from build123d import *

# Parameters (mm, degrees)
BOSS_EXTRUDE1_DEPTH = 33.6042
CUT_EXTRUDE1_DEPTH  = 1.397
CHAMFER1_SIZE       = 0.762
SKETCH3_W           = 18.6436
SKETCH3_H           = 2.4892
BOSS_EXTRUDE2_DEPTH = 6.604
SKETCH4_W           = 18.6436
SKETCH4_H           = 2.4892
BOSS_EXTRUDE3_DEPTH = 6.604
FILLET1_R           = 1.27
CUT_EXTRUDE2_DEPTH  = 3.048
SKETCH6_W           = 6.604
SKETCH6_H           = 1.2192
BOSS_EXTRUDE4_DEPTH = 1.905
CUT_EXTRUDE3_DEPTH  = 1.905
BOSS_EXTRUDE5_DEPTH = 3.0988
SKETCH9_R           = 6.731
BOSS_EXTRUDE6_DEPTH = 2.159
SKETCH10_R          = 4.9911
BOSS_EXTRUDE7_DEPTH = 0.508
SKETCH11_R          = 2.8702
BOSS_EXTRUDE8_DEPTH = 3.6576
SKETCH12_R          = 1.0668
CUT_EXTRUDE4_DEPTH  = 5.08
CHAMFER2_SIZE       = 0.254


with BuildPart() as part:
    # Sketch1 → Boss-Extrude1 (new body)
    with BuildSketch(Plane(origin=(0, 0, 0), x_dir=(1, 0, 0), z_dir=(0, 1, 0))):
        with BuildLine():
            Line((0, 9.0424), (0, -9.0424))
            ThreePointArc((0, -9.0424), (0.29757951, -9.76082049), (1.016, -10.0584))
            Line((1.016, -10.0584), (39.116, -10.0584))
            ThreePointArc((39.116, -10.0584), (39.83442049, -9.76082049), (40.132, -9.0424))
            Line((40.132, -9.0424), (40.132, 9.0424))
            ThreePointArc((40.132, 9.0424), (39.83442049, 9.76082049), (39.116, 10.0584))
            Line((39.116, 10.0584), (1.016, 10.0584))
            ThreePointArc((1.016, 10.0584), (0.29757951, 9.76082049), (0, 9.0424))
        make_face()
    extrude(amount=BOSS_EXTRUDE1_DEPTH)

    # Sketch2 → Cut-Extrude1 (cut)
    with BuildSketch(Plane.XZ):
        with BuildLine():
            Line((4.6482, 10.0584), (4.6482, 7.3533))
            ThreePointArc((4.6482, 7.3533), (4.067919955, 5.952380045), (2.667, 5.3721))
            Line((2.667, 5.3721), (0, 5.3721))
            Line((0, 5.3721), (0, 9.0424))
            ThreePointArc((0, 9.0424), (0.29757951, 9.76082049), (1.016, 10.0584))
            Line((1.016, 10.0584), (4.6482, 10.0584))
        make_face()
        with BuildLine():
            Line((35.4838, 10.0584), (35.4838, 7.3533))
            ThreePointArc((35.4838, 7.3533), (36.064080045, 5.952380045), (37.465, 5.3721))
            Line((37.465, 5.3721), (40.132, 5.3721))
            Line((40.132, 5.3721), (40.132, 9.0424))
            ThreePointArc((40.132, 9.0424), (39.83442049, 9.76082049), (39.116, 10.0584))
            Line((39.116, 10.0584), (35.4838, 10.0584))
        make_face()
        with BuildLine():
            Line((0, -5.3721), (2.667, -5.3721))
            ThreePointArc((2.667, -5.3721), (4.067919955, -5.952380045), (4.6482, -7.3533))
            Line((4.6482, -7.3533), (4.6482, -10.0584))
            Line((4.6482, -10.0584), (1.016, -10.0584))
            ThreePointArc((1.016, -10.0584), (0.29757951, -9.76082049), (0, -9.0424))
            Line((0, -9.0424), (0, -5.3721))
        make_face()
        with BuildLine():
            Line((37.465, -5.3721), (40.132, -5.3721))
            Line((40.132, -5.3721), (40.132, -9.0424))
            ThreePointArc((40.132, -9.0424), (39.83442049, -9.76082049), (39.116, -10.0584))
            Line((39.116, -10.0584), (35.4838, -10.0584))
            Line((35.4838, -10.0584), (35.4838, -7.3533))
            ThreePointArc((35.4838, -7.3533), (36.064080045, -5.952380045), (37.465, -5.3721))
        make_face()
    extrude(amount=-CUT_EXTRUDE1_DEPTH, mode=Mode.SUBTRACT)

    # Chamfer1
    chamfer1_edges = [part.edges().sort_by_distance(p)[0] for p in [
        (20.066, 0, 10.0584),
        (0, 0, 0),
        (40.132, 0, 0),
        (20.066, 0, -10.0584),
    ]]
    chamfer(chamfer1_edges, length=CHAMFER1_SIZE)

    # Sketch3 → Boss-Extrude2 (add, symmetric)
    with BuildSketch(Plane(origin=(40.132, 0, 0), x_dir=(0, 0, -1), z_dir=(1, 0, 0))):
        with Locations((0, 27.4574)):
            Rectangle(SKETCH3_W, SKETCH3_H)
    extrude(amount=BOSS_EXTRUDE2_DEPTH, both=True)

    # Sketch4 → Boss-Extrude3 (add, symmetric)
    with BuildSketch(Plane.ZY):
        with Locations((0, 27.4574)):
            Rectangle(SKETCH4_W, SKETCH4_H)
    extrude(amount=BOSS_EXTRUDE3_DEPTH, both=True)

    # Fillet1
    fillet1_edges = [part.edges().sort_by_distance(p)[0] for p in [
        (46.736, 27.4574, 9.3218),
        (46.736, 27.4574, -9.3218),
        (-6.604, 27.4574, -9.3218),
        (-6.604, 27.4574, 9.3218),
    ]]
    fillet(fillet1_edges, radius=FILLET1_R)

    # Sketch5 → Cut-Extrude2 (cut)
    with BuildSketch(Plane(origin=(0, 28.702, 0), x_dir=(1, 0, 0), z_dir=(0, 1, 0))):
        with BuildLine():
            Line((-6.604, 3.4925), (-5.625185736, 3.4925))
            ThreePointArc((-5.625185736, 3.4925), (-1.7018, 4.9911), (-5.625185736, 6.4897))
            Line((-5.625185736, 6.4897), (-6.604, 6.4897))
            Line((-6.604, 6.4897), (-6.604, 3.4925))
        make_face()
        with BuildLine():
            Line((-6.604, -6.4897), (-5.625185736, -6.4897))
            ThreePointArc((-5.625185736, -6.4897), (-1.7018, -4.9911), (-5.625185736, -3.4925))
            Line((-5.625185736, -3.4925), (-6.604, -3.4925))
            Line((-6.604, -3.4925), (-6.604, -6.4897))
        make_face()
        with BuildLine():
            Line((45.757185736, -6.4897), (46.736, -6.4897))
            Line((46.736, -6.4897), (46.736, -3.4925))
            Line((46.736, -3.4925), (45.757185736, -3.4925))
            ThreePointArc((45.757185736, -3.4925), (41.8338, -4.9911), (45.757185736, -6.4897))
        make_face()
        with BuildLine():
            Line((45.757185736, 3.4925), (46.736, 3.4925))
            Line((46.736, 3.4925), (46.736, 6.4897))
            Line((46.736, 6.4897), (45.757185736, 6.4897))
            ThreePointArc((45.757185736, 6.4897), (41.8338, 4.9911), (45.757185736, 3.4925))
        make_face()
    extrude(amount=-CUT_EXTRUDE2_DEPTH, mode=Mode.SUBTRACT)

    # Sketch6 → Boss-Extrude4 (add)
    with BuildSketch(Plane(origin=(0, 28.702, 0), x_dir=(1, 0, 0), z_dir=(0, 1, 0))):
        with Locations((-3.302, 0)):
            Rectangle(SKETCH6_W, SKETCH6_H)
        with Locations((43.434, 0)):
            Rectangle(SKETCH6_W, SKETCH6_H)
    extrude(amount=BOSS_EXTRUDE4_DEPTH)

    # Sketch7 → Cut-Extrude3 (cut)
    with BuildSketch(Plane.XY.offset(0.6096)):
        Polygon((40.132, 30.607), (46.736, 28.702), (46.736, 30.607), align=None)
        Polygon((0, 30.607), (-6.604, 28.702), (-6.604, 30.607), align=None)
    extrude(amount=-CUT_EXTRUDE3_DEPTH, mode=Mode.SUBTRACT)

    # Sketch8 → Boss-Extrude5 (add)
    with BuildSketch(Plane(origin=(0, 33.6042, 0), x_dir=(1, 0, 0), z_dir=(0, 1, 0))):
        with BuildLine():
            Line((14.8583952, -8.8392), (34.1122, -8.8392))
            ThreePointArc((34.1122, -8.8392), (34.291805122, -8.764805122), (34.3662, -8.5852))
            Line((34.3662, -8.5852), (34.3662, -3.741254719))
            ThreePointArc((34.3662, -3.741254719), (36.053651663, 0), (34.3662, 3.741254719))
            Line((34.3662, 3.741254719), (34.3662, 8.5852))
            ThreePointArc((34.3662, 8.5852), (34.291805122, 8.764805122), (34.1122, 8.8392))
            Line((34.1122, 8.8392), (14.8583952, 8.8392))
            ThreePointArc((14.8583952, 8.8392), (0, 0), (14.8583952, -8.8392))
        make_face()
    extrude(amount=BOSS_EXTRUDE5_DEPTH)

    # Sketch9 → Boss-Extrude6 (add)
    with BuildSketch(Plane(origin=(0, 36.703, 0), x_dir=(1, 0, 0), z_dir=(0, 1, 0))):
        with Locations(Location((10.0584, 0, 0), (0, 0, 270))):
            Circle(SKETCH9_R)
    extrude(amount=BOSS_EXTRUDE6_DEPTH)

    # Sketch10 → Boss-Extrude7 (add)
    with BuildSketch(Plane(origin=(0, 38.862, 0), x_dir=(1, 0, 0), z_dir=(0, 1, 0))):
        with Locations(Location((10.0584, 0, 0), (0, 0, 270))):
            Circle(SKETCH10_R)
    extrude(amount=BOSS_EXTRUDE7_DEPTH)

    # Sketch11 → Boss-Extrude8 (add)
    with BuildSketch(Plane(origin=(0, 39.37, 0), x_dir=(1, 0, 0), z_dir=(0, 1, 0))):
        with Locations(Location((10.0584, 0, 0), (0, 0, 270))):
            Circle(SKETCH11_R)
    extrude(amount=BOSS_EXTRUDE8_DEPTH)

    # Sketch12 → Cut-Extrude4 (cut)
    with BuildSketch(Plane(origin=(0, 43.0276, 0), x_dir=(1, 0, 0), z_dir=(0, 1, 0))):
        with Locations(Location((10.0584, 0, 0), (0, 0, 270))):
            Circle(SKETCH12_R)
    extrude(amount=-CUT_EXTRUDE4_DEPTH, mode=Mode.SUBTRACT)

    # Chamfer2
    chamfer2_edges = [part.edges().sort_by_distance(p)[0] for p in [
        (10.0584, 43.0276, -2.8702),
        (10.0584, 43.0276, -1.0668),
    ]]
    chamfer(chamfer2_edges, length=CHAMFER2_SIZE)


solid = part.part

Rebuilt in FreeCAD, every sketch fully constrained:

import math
import FreeCAD as App
import Part
import Sketcher
from FreeCAD import Vector
Q = App.Units.Quantity


def edges_at(feature, points):
    """Names of the edges that pass closest to the given points."""
    edges = feature.Shape.Edges
    near = lambda p: min(range(len(edges)), key=lambda i: edges[i].distToShape(Part.Vertex(*p))[0])
    return sorted({f"Edge{near(p) + 1}" for p in points})


def add_polygon(sketch, points):
    """Adds a closed chain of lines whose ends are joined by coincident constraints."""
    first, n = sketch.GeometryCount, len(points)
    for a, b in zip(points, points[1:] + points[:1]):
        sketch.addGeometry(Part.LineSegment(App.Vector(*a, 0), App.Vector(*b, 0)), False)
    for i in range(n):
        sketch.addConstraint(Sketcher.Constraint("Coincident", first + i, 2, first + (i + 1) % n, 1))

doc = App.newDocument("Part")
body = doc.addObject("PartDesign::Body", "Body")

sketch1 = doc.addObject("Sketcher::SketchObject", "Sketch")
body.addObject(sketch1)
sketch1.AttachmentSupport = (doc.XZ_Plane, [""])
sketch1.MapMode = "FlatFace"
sketch1.addGeometry([
    Part.LineSegment(Vector(0, -9.0424, 0), Vector(0, 9.0424, 0)),
    Part.ArcOfCircle(Part.Circle(Vector(1.016, 9.0424, 0), Vector(0, 0, 1), 1.016), math.radians(90), math.radians(180)),
    Part.LineSegment(Vector(1.016, 10.0584, 0), Vector(39.116, 10.0584, 0)),
    Part.ArcOfCircle(Part.Circle(Vector(39.116, 9.0424, 0), Vector(0, 0, 1), 1.016), math.radians(0), math.radians(90)),
    Part.LineSegment(Vector(40.132, 9.0424, 0), Vector(40.132, -9.0424, 0)),
    Part.ArcOfCircle(Part.Circle(Vector(39.116, -9.0424, 0), Vector(0, 0, 1), 1.016), math.radians(-90), math.radians(0)),
    Part.LineSegment(Vector(39.116, -10.0584, 0), Vector(1.016, -10.0584, 0)),
    Part.ArcOfCircle(Part.Circle(Vector(1.016, -9.0424, 0), Vector(0, 0, 1), 1.016), math.radians(180), math.radians(270)),
], False)
sketch1.addConstraint([
    Sketcher.Constraint("Tangent", 0, 2, 1, 2),
    Sketcher.Constraint("Tangent", 1, 1, 2, 1),
    Sketcher.Constraint("Tangent", 2, 2, 3, 2),
    Sketcher.Constraint("Tangent", 3, 1, 4, 1),
    Sketcher.Constraint("Tangent", 4, 2, 5, 2),
    Sketcher.Constraint("Tangent", 5, 1, 6, 1),
    Sketcher.Constraint("Tangent", 6, 2, 7, 2),
    Sketcher.Constraint("Tangent", 7, 1, 0, 1),
    Sketcher.Constraint("Vertical", 0),
    Sketcher.Constraint("Horizontal", 2),
    Sketcher.Constraint("Vertical", 4),
    Sketcher.Constraint("Horizontal", 6),
    Sketcher.Constraint("Equal", 1, 3),
    Sketcher.Constraint("Equal", 3, 5),
    Sketcher.Constraint("Equal", 5, 7),
    Sketcher.Constraint("Symmetric", 0, 2, 7, 1, -1, 1),
    Sketcher.Constraint("Radius", 1, Q("0.04 in")),
    Sketcher.Constraint("DistanceX", 2, 1, 2, 2, Q("1.5 in")),
    Sketcher.Constraint("DistanceY", 0, 1, 0, 2, Q("0.712 in")),
])
pad1 = doc.addObject("PartDesign::Pad", "Pad")
body.addObject(pad1)
pad1.Profile = sketch1
pad1.Length = Q("1.323 in")
pad1.Reversed = True

sketch2 = doc.addObject("Sketcher::SketchObject", "Sketch001")
body.addObject(sketch2)
sketch2.AttachmentSupport = (doc.XZ_Plane, [""])
sketch2.MapMode = "FlatFace"
sketch2.addGeometry([
    Part.LineSegment(Vector(4.6482, 7.3533, 0), Vector(4.6482, 10.0584, 0)),
    Part.LineSegment(Vector(4.6482, 10.0584, 0), Vector(1.016, 10.0584, 0)),
    Part.ArcOfCircle(Part.Circle(Vector(1.016, 9.0424, 0), Vector(0, 0, 1), 1.016), math.radians(90), math.radians(180)),
    Part.LineSegment(Vector(0, 9.0424, 0), Vector(0, 5.3721, 0)),
    Part.LineSegment(Vector(0, 5.3721, 0), Vector(2.667, 5.3721, 0)),
    Part.ArcOfCircle(Part.Circle(Vector(2.667, 7.3533, 0), Vector(0, 0, 1), 1.9812), math.radians(-90), math.radians(0)),
    Part.LineSegment(Vector(35.4838, 10.0584, 0), Vector(35.4838, 7.3533, 0)),
    Part.ArcOfCircle(Part.Circle(Vector(37.465, 7.3533, 0), Vector(0, 0, 1), 1.9812), math.radians(180), math.radians(270)),
    Part.LineSegment(Vector(37.465, 5.3721, 0), Vector(40.132, 5.3721, 0)),
    Part.LineSegment(Vector(40.132, 5.3721, 0), Vector(40.132, 9.0424, 0)),
    Part.ArcOfCircle(Part.Circle(Vector(39.116, 9.0424, 0), Vector(0, 0, 1), 1.016), math.radians(0), math.radians(90)),
    Part.LineSegment(Vector(39.116, 10.0584, 0), Vector(35.4838, 10.0584, 0)),
    Part.LineSegment(Vector(2.667, -5.3721, 0), Vector(0, -5.3721, 0)),
    Part.LineSegment(Vector(0, -5.3721, 0), Vector(0, -9.0424, 0)),
    Part.ArcOfCircle(Part.Circle(Vector(1.016, -9.0424, 0), Vector(0, 0, 1), 1.016), math.radians(180), math.radians(270)),
    Part.LineSegment(Vector(1.016, -10.0584, 0), Vector(4.6482, -10.0584, 0)),
    Part.LineSegment(Vector(4.6482, -10.0584, 0), Vector(4.6482, -7.3533, 0)),
    Part.ArcOfCircle(Part.Circle(Vector(2.667, -7.3533, 0), Vector(0, 0, 1), 1.9812), math.radians(0), math.radians(90)),
    Part.LineSegment(Vector(40.132, -5.3721, 0), Vector(37.465, -5.3721, 0)),
    Part.ArcOfCircle(Part.Circle(Vector(37.465, -7.3533, 0), Vector(0, 0, 1), 1.9812), math.radians(90), math.radians(180)),
    Part.LineSegment(Vector(35.4838, -7.3533, 0), Vector(35.4838, -10.0584, 0)),
    Part.LineSegment(Vector(35.4838, -10.0584, 0), Vector(39.116, -10.0584, 0)),
    Part.ArcOfCircle(Part.Circle(Vector(39.116, -9.0424, 0), Vector(0, 0, 1), 1.016), math.radians(-90), math.radians(0)),
    Part.LineSegment(Vector(40.132, -9.0424, 0), Vector(40.132, -5.3721, 0)),
], False)
sketch2.addConstraint([
    Sketcher.Constraint("Coincident", 0, 2, 1, 1),
    Sketcher.Constraint("Tangent", 1, 2, 2, 1),
    Sketcher.Constraint("Tangent", 2, 2, 3, 1),
    Sketcher.Constraint("Coincident", 3, 2, 4, 1),
    Sketcher.Constraint("Tangent", 4, 2, 5, 1),
    Sketcher.Constraint("Tangent", 5, 2, 0, 1),
    Sketcher.Constraint("Tangent", 6, 2, 7, 1),
    Sketcher.Constraint("Tangent", 7, 2, 8, 1),
    Sketcher.Constraint("Coincident", 8, 2, 9, 1),
    Sketcher.Constraint("Tangent", 9, 2, 10, 1),
    Sketcher.Constraint("Tangent", 10, 2, 11, 1),
    Sketcher.Constraint("Coincident", 11, 2, 6, 1),
    Sketcher.Constraint("Coincident", 12, 2, 13, 1),
    Sketcher.Constraint("Tangent", 13, 2, 14, 1),
    Sketcher.Constraint("Tangent", 14, 2, 15, 1),
    Sketcher.Constraint("Coincident", 15, 2, 16, 1),
    Sketcher.Constraint("Tangent", 16, 2, 17, 1),
    Sketcher.Constraint("Tangent", 17, 2, 12, 1),
    Sketcher.Constraint("Tangent", 18, 2, 19, 1),
    Sketcher.Constraint("Tangent", 19, 2, 20, 1),
    Sketcher.Constraint("Coincident", 20, 2, 21, 1),
    Sketcher.Constraint("Tangent", 21, 2, 22, 1),
    Sketcher.Constraint("Tangent", 22, 2, 23, 1),
    Sketcher.Constraint("Coincident", 23, 2, 18, 1),
    Sketcher.Constraint("Vertical", 0),
    Sketcher.Constraint("Horizontal", 1),
    Sketcher.Constraint("Vertical", 3),
    Sketcher.Constraint("Horizontal", 4),
    Sketcher.Constraint("Vertical", 6),
    Sketcher.Constraint("Horizontal", 8),
    Sketcher.Constraint("Vertical", 9),
    Sketcher.Constraint("Horizontal", 11),
    Sketcher.Constraint("Horizontal", 12),
    Sketcher.Constraint("Vertical", 13),
    Sketcher.Constraint("Horizontal", 15),
    Sketcher.Constraint("Vertical", 16),
    Sketcher.Constraint("Horizontal", 18),
    Sketcher.Constraint("Vertical", 20),
    Sketcher.Constraint("Horizontal", 21),
    Sketcher.Constraint("Vertical", 23),
    Sketcher.Constraint("Equal", 5, 7),
    Sketcher.Constraint("Equal", 2, 10),
    Sketcher.Constraint("Equal", 10, 14),
    Sketcher.Constraint("Equal", 7, 17),
    Sketcher.Constraint("Equal", 17, 19),
    Sketcher.Constraint("Equal", 14, 22),
    Sketcher.Constraint("Symmetric", 3, 2, 12, 2, -1, 1),
    Sketcher.Constraint("Symmetric", 2, 3, 14, 3, -1),
    Sketcher.Constraint("Symmetric", 7, 3, 19, 3, -1),
    Sketcher.Constraint("Symmetric", 10, 3, 22, 3, -1),
    Sketcher.Constraint("Horizontal", 5, 3, 7, 3),
    Sketcher.Constraint("Horizontal", 2, 3, 10, 3),
    Sketcher.Constraint("Vertical", 5, 3, 17, 3),
    Sketcher.Constraint("Equal", 4, 8),
    Sketcher.Constraint("Radius", 2, Q("0.04 in")),
    Sketcher.Constraint("Radius", 5, Q("0.078 in")),
    Sketcher.Constraint("DistanceX", 2, 3, 10, 3, Q("1.5 in")),
    Sketcher.Constraint("DistanceX", 1, 2, 1, 1, Q("0.143 in")),
    Sketcher.Constraint("DistanceY", 0, 1, 0, 2, Q("0.1065 in")),
    Sketcher.Constraint("DistanceY", -1, 1, 2, 3, Q("0.356 in")),
])
pocket1 = doc.addObject("PartDesign::Pocket", "Pocket")
body.addObject(pocket1)
pocket1.Profile = sketch2
pocket1.Length = Q("0.055 in")
doc.recompute()

chamfer = doc.addObject("PartDesign::Chamfer", "Chamfer")
body.addObject(chamfer)
chamfer.Base = (pocket1, edges_at(pocket1, [
    (20.066, 0, 10.058),
    (0, 0, 0),
    (40.132, 0, 0),
    (20.066, 0, -10.058),
]))
chamfer.Size = Q("0.03 in")

sketch3 = doc.addObject("Sketcher::SketchObject", "Sketch002")
body.addObject(sketch3)
sketch3.AttachmentSupport = (doc.YZ_Plane, [""])
sketch3.MapMode = "FlatFace"
sketch3.AttachmentOffset = App.Placement(Vector(0, 0, 1.58 * 25.4), App.Rotation())
add_polygon(sketch3, [(28.702, 9.3218), (26.2128, 9.3218), (26.2128, -9.3218), (28.702, -9.3218)])
sketch3.addConstraint([
    Sketcher.Constraint("Horizontal", 0),
    Sketcher.Constraint("Vertical", 1),
    Sketcher.Constraint("Horizontal", 2),
    Sketcher.Constraint("Vertical", 3),
    Sketcher.Constraint("DistanceX", 0, 2, 0, 1, Q("0.098 in")),
    Sketcher.Constraint("DistanceY", 1, 2, 1, 1, Q("0.734 in")),
    Sketcher.Constraint("DistanceX", -1, 1, 2, 2, Q("1.13 in")),
    Sketcher.Constraint("DistanceY", -1, 1, 0, 2, Q("0.367 in")),
])
pad2 = doc.addObject("PartDesign::Pad", "Pad001")
body.addObject(pad2)
pad2.Profile = sketch3
pad2.Length = Q("0.52 in")
pad2.Midplane = True

sketch4 = doc.addObject("Sketcher::SketchObject", "Sketch003")
body.addObject(sketch4)
sketch4.AttachmentSupport = (doc.YZ_Plane, [""])
sketch4.MapMode = "FlatFace"
add_polygon(sketch4, [(28.702, -9.3218), (26.2128, -9.3218), (26.2128, 9.3218), (28.702, 9.3218)])
sketch4.addConstraint([
    Sketcher.Constraint("Horizontal", 0),
    Sketcher.Constraint("Vertical", 1),
    Sketcher.Constraint("Horizontal", 2),
    Sketcher.Constraint("Vertical", 3),
    Sketcher.Constraint("DistanceX", 0, 2, 0, 1, Q("0.098 in")),
    Sketcher.Constraint("DistanceY", 1, 1, 1, 2, Q("0.734 in")),
    Sketcher.Constraint("DistanceX", -1, 1, 2, 2, Q("1.13 in")),
    Sketcher.Constraint("DistanceY", 0, 2, -1, 1, Q("0.367 in")),
])
pad3 = doc.addObject("PartDesign::Pad", "Pad002")
body.addObject(pad3)
pad3.Profile = sketch4
pad3.Length = Q("0.52 in")
pad3.Midplane = True
doc.recompute()

fillet = doc.addObject("PartDesign::Fillet", "Fillet")
body.addObject(fillet)
fillet.Base = (pad3, edges_at(pad3, [
    (46.736, 27.457, 9.322),
    (46.736, 27.457, -9.322),
    (-6.604, 27.457, -9.322),
    (-6.604, 27.457, 9.322),
]))
fillet.Radius = Q("0.05 in")

sketch5 = doc.addObject("Sketcher::SketchObject", "Sketch004")
body.addObject(sketch5)
sketch5.AttachmentSupport = (doc.XZ_Plane, [""])
sketch5.MapMode = "FlatFace"
sketch5.AttachmentOffset = App.Placement(Vector(0, 0, -1.13 * 25.4), App.Rotation())
sketch5.addGeometry([
    Part.LineSegment(Vector(-6.604, -3.4925, 0), Vector(-5.625186, -3.4925, 0)),
    Part.ArcOfCircle(Part.Circle(Vector(-3.9497, -4.9911, 0), Vector(0, 0, 1), 2.2479), math.radians(-138.189685), math.radians(138.189685)),
    Part.LineSegment(Vector(-5.625186, -6.4897, 0), Vector(-6.604, -6.4897, 0)),
    Part.LineSegment(Vector(-6.604, -6.4897, 0), Vector(-6.604, -3.4925, 0)),
    Part.LineSegment(Vector(-6.604, 6.4897, 0), Vector(-5.625186, 6.4897, 0)),
    Part.ArcOfCircle(Part.Circle(Vector(-3.9497, 4.9911, 0), Vector(0, 0, 1), 2.2479), math.radians(-138.189685), math.radians(138.189685)),
    Part.LineSegment(Vector(-5.625186, 3.4925, 0), Vector(-6.604, 3.4925, 0)),
    Part.LineSegment(Vector(-6.604, 3.4925, 0), Vector(-6.604, 6.4897, 0)),
    Part.LineSegment(Vector(45.757186, 6.4897, 0), Vector(46.736, 6.4897, 0)),
    Part.LineSegment(Vector(46.736, 6.4897, 0), Vector(46.736, 3.4925, 0)),
    Part.LineSegment(Vector(46.736, 3.4925, 0), Vector(45.757186, 3.4925, 0)),
    Part.ArcOfCircle(Part.Circle(Vector(44.0817, 4.9911, 0), Vector(0, 0, 1), 2.2479), math.radians(41.810315), math.radians(318.189685)),
    Part.LineSegment(Vector(45.757186, -3.4925, 0), Vector(46.736, -3.4925, 0)),
    Part.LineSegment(Vector(46.736, -3.4925, 0), Vector(46.736, -6.4897, 0)),
    Part.LineSegment(Vector(46.736, -6.4897, 0), Vector(45.757186, -6.4897, 0)),
    Part.ArcOfCircle(Part.Circle(Vector(44.0817, -4.9911, 0), Vector(0, 0, 1), 2.2479), math.radians(41.810315), math.radians(318.189685)),
], False)
sketch5.addConstraint([
    Sketcher.Constraint("Coincident", 0, 2, 1, 2),
    Sketcher.Constraint("Coincident", 1, 1, 2, 1),
    Sketcher.Constraint("Coincident", 2, 2, 3, 1),
    Sketcher.Constraint("Coincident", 3, 2, 0, 1),
    Sketcher.Constraint("Coincident", 4, 2, 5, 2),
    Sketcher.Constraint("Coincident", 5, 1, 6, 1),
    Sketcher.Constraint("Coincident", 6, 2, 7, 1),
    Sketcher.Constraint("Coincident", 7, 2, 4, 1),
    Sketcher.Constraint("Coincident", 8, 2, 9, 1),
    Sketcher.Constraint("Coincident", 9, 2, 10, 1),
    Sketcher.Constraint("Coincident", 10, 2, 11, 2),
    Sketcher.Constraint("Coincident", 11, 1, 8, 1),
    Sketcher.Constraint("Coincident", 12, 2, 13, 1),
    Sketcher.Constraint("Coincident", 13, 2, 14, 1),
    Sketcher.Constraint("Coincident", 14, 2, 15, 2),
    Sketcher.Constraint("Coincident", 15, 1, 12, 1),
    Sketcher.Constraint("Horizontal", 0),
    Sketcher.Constraint("Horizontal", 2),
    Sketcher.Constraint("Vertical", 3),
    Sketcher.Constraint("Horizontal", 4),
    Sketcher.Constraint("Horizontal", 6),
    Sketcher.Constraint("Vertical", 7),
    Sketcher.Constraint("Horizontal", 8),
    Sketcher.Constraint("Vertical", 9),
    Sketcher.Constraint("Horizontal", 10),
    Sketcher.Constraint("Horizontal", 12),
    Sketcher.Constraint("Vertical", 13),
    Sketcher.Constraint("Horizontal", 14),
    Sketcher.Constraint("Equal", 1, 5),
    Sketcher.Constraint("Equal", 5, 11),
    Sketcher.Constraint("Equal", 11, 15),
    Sketcher.Constraint("Symmetric", 1, 3, 5, 3, -1),
    Sketcher.Constraint("Symmetric", 11, 3, 15, 3, -1),
    Sketcher.Constraint("Symmetric", 3, 2, 6, 2, -1),
    Sketcher.Constraint("Symmetric", 9, 2, 12, 2, -1),
    Sketcher.Constraint("Horizontal", 5, 3, 11, 3),
    Sketcher.Constraint("Horizontal", 7, 2, 8, 2),
    Sketcher.Constraint("Horizontal", 6, 2, 9, 2),
    Sketcher.Constraint("Horizontal", 2, 2, 13, 2),
    Sketcher.Constraint("Vertical", 0, 2, 1, 1),
    Sketcher.Constraint("Vertical", 1, 1, 4, 2),
    Sketcher.Constraint("Equal", 6, 8),
    Sketcher.Constraint("Radius", 1, Q("0.0885 in")),
    Sketcher.Constraint("DistanceY", 3, 1, 3, 2, Q("0.118 in")),
    Sketcher.Constraint("DistanceX", 2, 2, -1, 1, Q("0.26 in")),
    Sketcher.Constraint("DistanceX", -1, 1, 8, 2, Q("1.84 in")),
    Sketcher.Constraint("DistanceY", 1, 3, 5, 3, Q("0.393 in")),
    Sketcher.Constraint("DistanceX", 5, 3, 11, 3, Q("1.891 in")),
])
pocket2 = doc.addObject("PartDesign::Pocket", "Pocket001")
body.addObject(pocket2)
pocket2.Profile = sketch5
pocket2.Length = Q("0.12 in")
pocket2.Reversed = True

sketch6 = doc.addObject("Sketcher::SketchObject", "Sketch005")
body.addObject(sketch6)
sketch6.AttachmentSupport = (doc.XZ_Plane, [""])
sketch6.MapMode = "FlatFace"
sketch6.AttachmentOffset = App.Placement(Vector(0, 0, -1.13 * 25.4), App.Rotation())
add_polygon(sketch6, [(-6.604, -0.6096), (-6.604, 0.6096), (0, 0.6096), (0, -0.6096)])
add_polygon(sketch6, [(40.132, -0.6096), (40.132, 0.6096), (46.736, 0.6096), (46.736, -0.6096)])
sketch6.addConstraint([
    Sketcher.Constraint("Vertical", 0),
    Sketcher.Constraint("Horizontal", 1),
    Sketcher.Constraint("Vertical", 2),
    Sketcher.Constraint("Horizontal", 3),
    Sketcher.Constraint("Vertical", 4),
    Sketcher.Constraint("Horizontal", 5),
    Sketcher.Constraint("Vertical", 6),
    Sketcher.Constraint("Horizontal", 7),
    Sketcher.Constraint("Symmetric", 1, 2, 2, 2, -1, 1),
    Sketcher.Constraint("Horizontal", 1, 2, 4, 2),
    Sketcher.Constraint("Horizontal", 3, 2, 6, 2),
    Sketcher.Constraint("Equal", 3, 5),
    Sketcher.Constraint("DistanceX", 1, 1, 1, 2, Q("0.26 in")),
    Sketcher.Constraint("DistanceX", 0, 2, 5, 2, Q("2.1 in")),
    Sketcher.Constraint("DistanceY", 0, 1, 0, 2, Q("0.048 in")),
])
pad4 = doc.addObject("PartDesign::Pad", "Pad003")
body.addObject(pad4)
pad4.Profile = sketch6
pad4.Length = Q("0.075 in")
pad4.Reversed = True

sketch7 = doc.addObject("Sketcher::SketchObject", "Sketch006")
body.addObject(sketch7)
sketch7.AttachmentSupport = (doc.XY_Plane, [""])
sketch7.MapMode = "FlatFace"
sketch7.AttachmentOffset = App.Placement(Vector(0, 0, 0.024 * 25.4), App.Rotation())
add_polygon(sketch7, [(40.132, 30.607), (46.736, 28.702), (46.736, 30.607)])
add_polygon(sketch7, [(-6.604, 28.702), (0, 30.607), (-6.604, 30.607)])
sketch7.addConstraint([
    Sketcher.Constraint("Vertical", 1),
    Sketcher.Constraint("Horizontal", 2),
    Sketcher.Constraint("Horizontal", 4),
    Sketcher.Constraint("Vertical", 5),
    Sketcher.Constraint("PointOnObject", 3, 2, -2),
    Sketcher.Constraint("Horizontal", 2, 2, 3, 2),
    Sketcher.Constraint("Horizontal", 0, 2, 5, 2),
    Sketcher.Constraint("Equal", 2, 4),
    Sketcher.Constraint("DistanceX", 2, 2, 2, 1, Q("0.26 in")),
    Sketcher.Constraint("DistanceX", 4, 2, 1, 2, Q("2.1 in")),
    Sketcher.Constraint("DistanceY", 1, 1, 1, 2, Q("0.075 in")),
    Sketcher.Constraint("DistanceY", -1, 1, 0, 2, Q("1.13 in")),
])
pocket3 = doc.addObject("PartDesign::Pocket", "Pocket002")
body.addObject(pocket3)
pocket3.Profile = sketch7
pocket3.Length = Q("0.075 in")

sketch8 = doc.addObject("Sketcher::SketchObject", "Sketch007")
body.addObject(sketch8)
sketch8.AttachmentSupport = (doc.XZ_Plane, [""])
sketch8.MapMode = "FlatFace"
sketch8.AttachmentOffset = App.Placement(Vector(0, 0, -1.323 * 25.4), App.Rotation())
sketch8.addGeometry([
    Part.LineSegment(Vector(14.858395, 8.8392, 0), Vector(34.1122, 8.8392, 0)),
    Part.ArcOfCircle(Part.Circle(Vector(34.1122, 8.5852, 0), Vector(0, 0, 1), 0.254), math.radians(0), math.radians(90)),
    Part.LineSegment(Vector(34.3662, 8.5852, 0), Vector(34.3662, 3.741255, 0)),
    Part.ArcOfCircle(Part.Circle(Vector(31.062552, 0, 0), Vector(0, 0, 1), 4.9911), math.radians(-48.55446), math.radians(48.55446)),
    Part.LineSegment(Vector(34.3662, -3.741255, 0), Vector(34.3662, -8.5852, 0)),
    Part.ArcOfCircle(Part.Circle(Vector(34.1122, -8.5852, 0), Vector(0, 0, 1), 0.254), math.radians(-90), math.radians(0)),
    Part.LineSegment(Vector(34.1122, -8.8392, 0), Vector(14.858395, -8.8392, 0)),
    Part.ArcOfCircle(Part.Circle(Vector(10.0584, 0, 0), Vector(0, 0, 1), 10.0584), math.radians(61.49649), math.radians(298.50351)),
], False)
sketch8.addConstraint([
    Sketcher.Constraint("Tangent", 0, 2, 1, 2),
    Sketcher.Constraint("Tangent", 1, 1, 2, 1),
    Sketcher.Constraint("Coincident", 2, 2, 3, 2),
    Sketcher.Constraint("Coincident", 3, 1, 4, 1),
    Sketcher.Constraint("Tangent", 4, 2, 5, 2),
    Sketcher.Constraint("Tangent", 5, 1, 6, 1),
    Sketcher.Constraint("Coincident", 6, 2, 7, 2),
    Sketcher.Constraint("Coincident", 7, 1, 0, 1),
    Sketcher.Constraint("Horizontal", 0),
    Sketcher.Constraint("Vertical", 2),
    Sketcher.Constraint("Vertical", 4),
    Sketcher.Constraint("Horizontal", 6),
    Sketcher.Constraint("Equal", 1, 5),
    Sketcher.Constraint("Symmetric", 1, 3, 5, 3, -1),
    Sketcher.Constraint("PointOnObject", 3, 3, -1),
    Sketcher.Constraint("PointOnObject", 7, 3, -1),
    Sketcher.Constraint("Radius", 1, Q("0.01 in")),
    Sketcher.Constraint("Radius", 7, Q("0.396 in")),
    Sketcher.Constraint("Radius", 3, Q("0.1965 in")),
    Sketcher.Constraint("DistanceX", -1, 1, 1, 3, Q("1.343 in")),
    Sketcher.Constraint("DistanceY", -1, 1, 1, 3, Q("0.338 in")),
    Sketcher.Constraint("DistanceX", -1, 1, 7, 3, Q("0.396 in")),
    Sketcher.Constraint("DistanceY", 2, 2, 2, 1, 4.843945),
])
pad5 = doc.addObject("PartDesign::Pad", "Pad004")
body.addObject(pad5)
pad5.Profile = sketch8
pad5.Length = Q("0.122 in")
pad5.Reversed = True

sketch9 = doc.addObject("Sketcher::SketchObject", "Sketch008")
body.addObject(sketch9)
sketch9.AttachmentSupport = (doc.XZ_Plane, [""])
sketch9.MapMode = "FlatFace"
sketch9.AttachmentOffset = App.Placement(Vector(0, 0, -1.445 * 25.4), App.Rotation())
sketch9.addGeometry(Part.Circle(Vector(10.0584, 0, 0), Vector(0, 0, 1), 6.731), False)
sketch9.addConstraint([
    Sketcher.Constraint("PointOnObject", 0, 3, -1),
    Sketcher.Constraint("Diameter", 0, Q("0.53 in")),
    Sketcher.Constraint("DistanceX", -1, 1, 0, 3, Q("0.396 in")),
])
pad6 = doc.addObject("PartDesign::Pad", "Pad005")
body.addObject(pad6)
pad6.Profile = sketch9
pad6.Length = Q("0.085 in")
pad6.Reversed = True

sketch10 = doc.addObject("Sketcher::SketchObject", "Sketch009")
body.addObject(sketch10)
sketch10.AttachmentSupport = (doc.XZ_Plane, [""])
sketch10.MapMode = "FlatFace"
sketch10.AttachmentOffset = App.Placement(Vector(0, 0, -1.53 * 25.4), App.Rotation())
sketch10.addGeometry(Part.Circle(Vector(10.0584, 0, 0), Vector(0, 0, 1), 4.9911), False)
sketch10.addConstraint([
    Sketcher.Constraint("PointOnObject", 0, 3, -1),
    Sketcher.Constraint("Diameter", 0, Q("0.393 in")),
    Sketcher.Constraint("DistanceX", -1, 1, 0, 3, Q("0.396 in")),
])
pad7 = doc.addObject("PartDesign::Pad", "Pad006")
body.addObject(pad7)
pad7.Profile = sketch10
pad7.Length = Q("0.02 in")
pad7.Reversed = True

sketch11 = doc.addObject("Sketcher::SketchObject", "Sketch010")
body.addObject(sketch11)
sketch11.AttachmentSupport = (doc.XZ_Plane, [""])
sketch11.MapMode = "FlatFace"
sketch11.AttachmentOffset = App.Placement(Vector(0, 0, -1.55 * 25.4), App.Rotation())
sketch11.addGeometry(Part.Circle(Vector(10.0584, 0, 0), Vector(0, 0, 1), 2.8702), False)
sketch11.addConstraint([
    Sketcher.Constraint("PointOnObject", 0, 3, -1),
    Sketcher.Constraint("Diameter", 0, Q("0.226 in")),
    Sketcher.Constraint("DistanceX", -1, 1, 0, 3, Q("0.396 in")),
])
pad8 = doc.addObject("PartDesign::Pad", "Pad007")
body.addObject(pad8)
pad8.Profile = sketch11
pad8.Length = Q("0.144 in")
pad8.Reversed = True

sketch12 = doc.addObject("Sketcher::SketchObject", "Sketch011")
body.addObject(sketch12)
sketch12.AttachmentSupport = (doc.XZ_Plane, [""])
sketch12.MapMode = "FlatFace"
sketch12.AttachmentOffset = App.Placement(Vector(0, 0, -1.694 * 25.4), App.Rotation())
sketch12.addGeometry(Part.Circle(Vector(10.0584, 0, 0), Vector(0, 0, 1), 1.0668), False)
sketch12.addConstraint([
    Sketcher.Constraint("PointOnObject", 0, 3, -1),
    Sketcher.Constraint("Diameter", 0, Q("0.084 in")),
    Sketcher.Constraint("DistanceX", -1, 1, 0, 3, Q("0.396 in")),
])
pocket4 = doc.addObject("PartDesign::Pocket", "Pocket003")
body.addObject(pocket4)
pocket4.Profile = sketch12
pocket4.Length = Q("0.2 in")
pocket4.Reversed = True
doc.recompute()

chamfer2 = doc.addObject("PartDesign::Chamfer", "Chamfer001")
body.addObject(chamfer2)
chamfer2.Base = (pocket4, edges_at(pocket4, [(10.058, 43.028, -2.87), (10.058, 43.028, -1.067)]))
chamfer2.Size = Q("0.01 in")

doc.recompute()
